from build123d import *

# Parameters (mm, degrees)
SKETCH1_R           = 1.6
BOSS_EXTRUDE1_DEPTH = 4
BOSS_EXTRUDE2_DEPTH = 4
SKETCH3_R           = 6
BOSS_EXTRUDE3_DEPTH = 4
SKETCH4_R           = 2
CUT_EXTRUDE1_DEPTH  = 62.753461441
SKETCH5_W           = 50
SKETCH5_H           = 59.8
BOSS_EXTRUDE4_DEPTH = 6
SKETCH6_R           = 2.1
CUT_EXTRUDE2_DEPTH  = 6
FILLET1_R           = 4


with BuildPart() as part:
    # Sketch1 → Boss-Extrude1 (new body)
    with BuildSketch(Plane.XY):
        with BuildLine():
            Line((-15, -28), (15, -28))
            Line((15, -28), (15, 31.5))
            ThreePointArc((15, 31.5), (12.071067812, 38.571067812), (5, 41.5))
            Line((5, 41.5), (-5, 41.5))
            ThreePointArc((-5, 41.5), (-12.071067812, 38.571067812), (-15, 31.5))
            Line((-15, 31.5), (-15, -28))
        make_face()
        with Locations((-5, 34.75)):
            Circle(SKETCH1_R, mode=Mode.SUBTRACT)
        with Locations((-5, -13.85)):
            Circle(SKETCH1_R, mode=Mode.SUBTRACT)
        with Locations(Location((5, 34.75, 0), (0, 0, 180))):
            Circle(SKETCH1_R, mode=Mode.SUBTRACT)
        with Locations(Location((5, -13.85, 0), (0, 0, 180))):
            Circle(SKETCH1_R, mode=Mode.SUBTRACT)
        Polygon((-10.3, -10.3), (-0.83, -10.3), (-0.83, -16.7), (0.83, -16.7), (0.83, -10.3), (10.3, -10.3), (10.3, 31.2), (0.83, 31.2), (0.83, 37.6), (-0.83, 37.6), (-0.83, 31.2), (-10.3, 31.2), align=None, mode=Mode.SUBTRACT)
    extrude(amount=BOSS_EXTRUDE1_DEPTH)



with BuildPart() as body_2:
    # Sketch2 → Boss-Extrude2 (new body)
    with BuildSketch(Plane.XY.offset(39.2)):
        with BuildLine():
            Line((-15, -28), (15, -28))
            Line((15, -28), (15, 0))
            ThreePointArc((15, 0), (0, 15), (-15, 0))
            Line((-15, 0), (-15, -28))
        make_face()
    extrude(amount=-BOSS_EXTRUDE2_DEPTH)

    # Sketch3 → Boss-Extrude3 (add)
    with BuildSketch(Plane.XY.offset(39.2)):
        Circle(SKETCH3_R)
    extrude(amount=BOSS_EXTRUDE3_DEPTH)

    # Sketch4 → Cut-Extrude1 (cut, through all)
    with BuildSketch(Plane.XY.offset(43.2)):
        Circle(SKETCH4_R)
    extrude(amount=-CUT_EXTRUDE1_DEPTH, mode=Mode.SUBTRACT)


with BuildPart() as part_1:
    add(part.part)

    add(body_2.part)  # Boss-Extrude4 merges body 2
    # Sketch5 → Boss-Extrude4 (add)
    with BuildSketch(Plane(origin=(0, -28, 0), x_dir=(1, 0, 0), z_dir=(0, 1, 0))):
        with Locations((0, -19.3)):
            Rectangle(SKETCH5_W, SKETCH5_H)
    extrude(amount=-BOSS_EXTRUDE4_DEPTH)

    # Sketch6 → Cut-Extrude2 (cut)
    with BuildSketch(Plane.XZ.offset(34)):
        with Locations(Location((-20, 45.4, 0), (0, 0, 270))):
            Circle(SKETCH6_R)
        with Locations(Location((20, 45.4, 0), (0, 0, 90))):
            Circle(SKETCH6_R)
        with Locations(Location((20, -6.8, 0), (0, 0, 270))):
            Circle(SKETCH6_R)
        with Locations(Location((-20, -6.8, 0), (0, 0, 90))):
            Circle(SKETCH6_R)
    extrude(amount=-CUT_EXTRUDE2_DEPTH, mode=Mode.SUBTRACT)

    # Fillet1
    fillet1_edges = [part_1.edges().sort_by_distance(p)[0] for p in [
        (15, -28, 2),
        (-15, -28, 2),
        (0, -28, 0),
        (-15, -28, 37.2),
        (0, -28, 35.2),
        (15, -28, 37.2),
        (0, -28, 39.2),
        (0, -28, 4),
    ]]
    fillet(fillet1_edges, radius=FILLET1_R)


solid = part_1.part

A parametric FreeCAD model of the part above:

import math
import FreeCAD as App
import Part
import Sketcher
from FreeCAD import Vector


def edges_at(feature, points):
    """Names of the edges that pass closest to the given points."""
    edges = feature.Shape.Edges
    near = lambda p: min(range(len(edges)), key=lambda i: edges[i].distToShape(Part.Vertex(*p))[0])
    return sorted({f"Edge{near(p) + 1}" for p in points})


def add_polygon(sketch, points):
    """Adds a closed chain of lines whose ends are joined by coincident constraints."""
    first, n = sketch.GeometryCount, len(points)
    for a, b in zip(points, points[1:] + points[:1]):
        sketch.addGeometry(Part.LineSegment(App.Vector(*a, 0), App.Vector(*b, 0)), False)
    for i in range(n):
        sketch.addConstraint(Sketcher.Constraint("Coincident", first + i, 2, first + (i + 1) % n, 1))

doc = App.newDocument("Part")
body = doc.addObject("PartDesign::Body", "Body")

# Sketch on XY plane
sketch1 = body.newObject("Sketcher::SketchObject", "Sketch")
sketch1.AttachmentSupport = (doc.getObject("XY_Plane"), [""])
sketch1.MapMode = "FlatFace"
sketch1.addGeometry(Part.LineSegment(Vector(-15, -28, 0), Vector(15, -28, 0)), False)  # 0
sketch1.addGeometry(Part.LineSegment(Vector(15, -28, 0), Vector(15, 31.5, 0)), False)  # 1
sketch1.addGeometry(Part.ArcOfCircle(Part.Circle(Vector(5, 31.5, 0), Vector(0, 0, 1), 10), math.radians(0), math.radians(90)), False)  # 2
sketch1.addGeometry(Part.LineSegment(Vector(5, 41.5, 0), Vector(-5, 41.5, 0)), False)  # 3
sketch1.addGeometry(Part.ArcOfCircle(Part.Circle(Vector(-5, 31.5, 0), Vector(0, 0, 1), 10), math.radians(90), math.radians(180)), False)  # 4
sketch1.addGeometry(Part.LineSegment(Vector(-15, 31.5, 0), Vector(-15, -28, 0)), False)  # 5
sketch1.addGeometry(Part.Circle(Vector(-5, -13.85, 0), Vector(0, 0, 1), 1.6), False)  # 6
sketch1.addGeometry(Part.Circle(Vector(5, -13.85, 0), Vector(0, 0, 1), 1.6), False)  # 7
sketch1.addGeometry(Part.Circle(Vector(-5, 34.75, 0), Vector(0, 0, 1), 1.6), False)  # 8
add_polygon(sketch1, [(-0.83, -10.3), (-10.3, -10.3), (-10.3, 31.2), (-0.83, 31.2), (-0.83, 37.6), (0.83, 37.6), (0.83, 31.2), (10.3, 31.2), (10.3, -10.3), (0.83, -10.3), (0.83, -16.7), (-0.83, -16.7)])  # lines 9-20
sketch1.addGeometry(Part.Circle(Vector(5, 34.75, 0), Vector(0, 0, 1), 1.6), False)  # 21
sketch1.addConstraint(Sketcher.Constraint("Coincident", 0, 2, 1, 1))
sketch1.addConstraint(Sketcher.Constraint("Tangent", 1, 2, 2, 1))
sketch1.addConstraint(Sketcher.Constraint("Tangent", 2, 2, 3, 1))
sketch1.addConstraint(Sketcher.Constraint("Tangent", 3, 2, 4, 1))
sketch1.addConstraint(Sketcher.Constraint("Tangent", 4, 2, 5, 1))
sketch1.addConstraint(Sketcher.Constraint("Coincident", 5, 2, 0, 1))
sketch1.addConstraint(Sketcher.Constraint("Horizontal", 0))
sketch1.addConstraint(Sketcher.Constraint("Vertical", 1))
sketch1.addConstraint(Sketcher.Constraint("Horizontal", 3))
sketch1.addConstraint(Sketcher.Constraint("Vertical", 5))
sketch1.addConstraint(Sketcher.Constraint("Horizontal", 9))
sketch1.addConstraint(Sketcher.Constraint("Vertical", 10))
sketch1.addConstraint(Sketcher.Constraint("Horizontal", 11))
sketch1.addConstraint(Sketcher.Constraint("Vertical", 12))
sketch1.addConstraint(Sketcher.Constraint("Horizontal", 13))
sketch1.addConstraint(Sketcher.Constraint("Vertical", 14))
sketch1.addConstraint(Sketcher.Constraint("Horizontal", 15))
sketch1.addConstraint(Sketcher.Constraint("Vertical", 16))
sketch1.addConstraint(Sketcher.Constraint("Horizontal", 17))
sketch1.addConstraint(Sketcher.Constraint("Vertical", 18))
sketch1.addConstraint(Sketcher.Constraint("Horizontal", 19))
sketch1.addConstraint(Sketcher.Constraint("Vertical", 20))
sketch1.addConstraint(Sketcher.Constraint("Equal", 2, 4))
sketch1.addConstraint(Sketcher.Constraint("Equal", 6, 7))
sketch1.addConstraint(Sketcher.Constraint("Equal", 7, 8))
sketch1.addConstraint(Sketcher.Constraint("Equal", 8, 21))
sketch1.addConstraint(Sketcher.Constraint("Symmetric", 6, 3, 7, 3, -2))
sketch1.addConstraint(Sketcher.Constraint("Symmetric", 8, 3, 21, 3, -2))
sketch1.addConstraint(Sketcher.Constraint("Symmetric", 11, 2, 14, 2, -2))
sketch1.addConstraint(Sketcher.Constraint("Symmetric", 9, 2, 16, 2, -2))
sketch1.addConstraint(Sketcher.Constraint("Vertical", 4, 3, 6, 3))
sketch1.addConstraint(Sketcher.Constraint("Vertical", 2, 3, 7, 3))
sketch1.addConstraint(Sketcher.Constraint("Vertical", 6, 3, 8, 3))
sketch1.addConstraint(Sketcher.Constraint("Vertical", 14, 2, 17, 2))
sketch1.addConstraint(Sketcher.Constraint("Vertical", 12, 2, 19, 2))
sketch1.addConstraint(Sketcher.Constraint("Equal", 14, 18))
sketch1.addConstraint(Sketcher.Constraint("Radius", 2, 10.0))
sketch1.addConstraint(Sketcher.Constraint("Diameter", 6, 3.2))
sketch1.addConstraint(Sketcher.Constraint("DistanceX", 0, 1, 0, 2, 30.0))
sketch1.addConstraint(Sketcher.Constraint("DistanceY", 1, 1, 1, 2, 59.5))
sketch1.addConstraint(Sketcher.Constraint("DistanceY", 10, 1, 10, 2, 41.5))
sketch1.addConstraint(Sketcher.Constraint("DistanceY", 12, 1, 12, 2, 6.4))
sketch1.addConstraint(Sketcher.Constraint("DistanceY", 0, 2, -1, 1, 28.0))
sketch1.addConstraint(Sketcher.Constraint("DistanceX", 9, 2, 9, 1, 9.47))
sketch1.addConstraint(Sketcher.Constraint("DistanceX", 13, 1, 13, 2, 1.66))
sketch1.addConstraint(Sketcher.Constraint("DistanceY", 9, 2, -1, 1, 10.3))
sketch1.addConstraint(Sketcher.Constraint("DistanceY", 6, 3, 8, 3, 48.6))
sketch1.addConstraint(Sketcher.Constraint("DistanceY", 6, 3, -1, 1, 13.85))
pad1 = body.newObject("PartDesign::Pad", "Pad")
pad1.Profile = sketch1
pad1.Length = 4
body2 = doc.addObject("PartDesign::Body", "Body001")

# Sketch on XY plane
sketch2 = body2.newObject("Sketcher::SketchObject", "Sketch001")
sketch2.AttachmentSupport = (doc.getObject("XY_Plane001"), [""])
sketch2.MapMode = "FlatFace"
sketch2.AttachmentOffset = App.Placement(Vector(0, 0, 39.2), App.Rotation())
sketch2.addGeometry(Part.LineSegment(Vector(-15, -28, 0), Vector(15, -28, 0)), False)
sketch2.addGeometry(Part.LineSegment(Vector(15, -28, 0), Vector(15, 0, 0)), False)
sketch2.addGeometry(Part.ArcOfCircle(Part.Circle(Vector(0, 0, 0), Vector(0, 0, 1), 15), math.radians(0), math.radians(180)), False)
sketch2.addGeometry(Part.LineSegment(Vector(-15, 0, 0), Vector(-15, -28, 0)), False)
sketch2.addConstraint(Sketcher.Constraint("Coincident", 0, 2, 1, 1))
sketch2.addConstraint(Sketcher.Constraint("Tangent", 1, 2, 2, 1))
sketch2.addConstraint(Sketcher.Constraint("Tangent", 2, 2, 3, 1))
sketch2.addConstraint(Sketcher.Constraint("Coincident", 3, 2, 0, 1))
sketch2.addConstraint(Sketcher.Constraint("Horizontal", 0))
sketch2.addConstraint(Sketcher.Constraint("Vertical", 1))
sketch2.addConstraint(Sketcher.Constraint("Vertical", 3))
sketch2.addConstraint(Sketcher.Constraint("Coincident", 2, 3, -1, 1))
sketch2.addConstraint(Sketcher.Constraint("Radius", 2, 15.0))
sketch2.addConstraint(Sketcher.Constraint("DistanceY", 1, 1, 1, 2, 28.0))
pad2 = body2.newObject("PartDesign::Pad", "Pad001")
pad2.Profile = sketch2
pad2.Length = 4
pad2.Reversed = True

# Sketch on XY plane
sketch3 = body2.newObject("Sketcher::SketchObject", "Sketch002")
sketch3.AttachmentSupport = (doc.getObject("XY_Plane001"), [""])
sketch3.MapMode = "FlatFace"
sketch3.AttachmentOffset = App.Placement(Vector(0, 0, 39.2), App.Rotation())
sketch3.addGeometry(Part.Circle(Vector(0, 0, 0), Vector(0, 0, 1), 6), False)
sketch3.addConstraint(Sketcher.Constraint("Coincident", 0, 3, -1, 1))
sketch3.addConstraint(Sketcher.Constraint("Diameter", 0, 12.0))
pad3 = body2.newObject("PartDesign::Pad", "Pad002")
pad3.Profile = sketch3
pad3.Length = 4

# Sketch on XY plane
sketch4 = body2.newObject("Sketcher::SketchObject", "Sketch003")
sketch4.AttachmentSupport = (doc.getObject("XY_Plane001"), [""])
sketch4.MapMode = "FlatFace"
sketch4.AttachmentOffset = App.Placement(Vector(0, 0, 43.2), App.Rotation())
sketch4.addGeometry(Part.Circle(Vector(0, 0, 0), Vector(0, 0, 1), 2), False)
sketch4.addConstraint(Sketcher.Constraint("Coincident", 0, 3, -1, 1))
sketch4.addConstraint(Sketcher.Constraint("Diameter", 0, 4.0))
pocket1 = body2.newObject("PartDesign::Pocket", "Pocket")
pocket1.Profile = sketch4
pocket1.Type = "ThroughAll"
body.AllowCompound = True
doc.recompute()

boolean = body.newObject("PartDesign::Boolean", "Boolean")
boolean.Type = "Fuse"
boolean.addObjects([body2])

# Sketch on XZ plane
sketch5 = body.newObject("Sketcher::SketchObject", "Sketch004")
sketch5.AttachmentSupport = (doc.getObject("XZ_Plane"), [""])
sketch5.MapMode = "FlatFace"
sketch5.AttachmentOffset = App.Placement(Vector(0, 0, 28), App.Rotation())
add_polygon(sketch5, [(-25, -10.6), (-25, 49.2), (25, 49.2), (25, -10.6)])  # lines 0-3
sketch5.addConstraint(Sketcher.Constraint("Vertical", 0))
sketch5.addConstraint(Sketcher.Constraint("Horizontal", 1))
sketch5.addConstraint(Sketcher.Constraint("Vertical", 2))
sketch5.addConstraint(Sketcher.Constraint("Horizontal", 3))
sketch5.addConstraint(Sketcher.Constraint("DistanceX", 1, 1, 1, 2, 50.0))
sketch5.addConstraint(Sketcher.Constraint("DistanceY", 0, 1, 0, 2, 59.8))
sketch5.addConstraint(Sketcher.Constraint("DistanceX", 0, 2, -1, 1, 25.0))
sketch5.addConstraint(Sketcher.Constraint("DistanceY", -1, 1, 0, 2, 49.2))
pad4 = body.newObject("PartDesign::Pad", "Pad003")
pad4.Profile = sketch5
pad4.Length = 6

# Sketch on XZ plane
sketch6 = body.newObject("Sketcher::SketchObject", "Sketch005")
sketch6.AttachmentSupport = (doc.getObject("XZ_Plane"), [""])
sketch6.MapMode = "FlatFace"
sketch6.AttachmentOffset = App.Placement(Vector(0, 0, 34), App.Rotation())
sketch6.addGeometry(Part.Circle(Vector(-20, 45.4, 0), Vector(0, 0, 1), 2.1), False)
sketch6.addGeometry(Part.Circle(Vector(20, 45.4, 0), Vector(0, 0, 1), 2.1), False)
sketch6.addGeometry(Part.Circle(Vector(20, -6.8, 0), Vector(0, 0, 1), 2.1), False)
sketch6.addGeometry(Part.Circle(Vector(-20, -6.8, 0), Vector(0, 0, 1), 2.1), False)
sketch6.addConstraint(Sketcher.Constraint("Equal", 0, 1))
sketch6.addConstraint(Sketcher.Constraint("Equal", 1, 2))
sketch6.addConstraint(Sketcher.Constraint("Equal", 2, 3))
sketch6.addConstraint(Sketcher.Constraint("Symmetric", 0, 3, 1, 3, -2))
sketch6.addConstraint(Sketcher.Constraint("Symmetric", 2, 3, 3, 3, -2))
sketch6.addConstraint(Sketcher.Constraint("Vertical", 1, 3, 2, 3))
sketch6.addConstraint(Sketcher.Constraint("Diameter", 0, 4.2))
sketch6.addConstraint(Sketcher.Constraint("DistanceX", 0, 3, -1, 1, 20.0))
sketch6.addConstraint(Sketcher.Constraint("DistanceY", -1, 1, 0, 3, 45.4))
sketch6.addConstraint(Sketcher.Constraint("DistanceY", 2, 3, -1, 1, 6.8))
pocket2 = body.newObject("PartDesign::Pocket", "Pocket001")
pocket2.Profile = sketch6
pocket2.Length = 6
doc.recompute()

fillet = body.newObject("PartDesign::Fillet", "Fillet")
fillet.Base = (pocket2, edges_at(pocket2, [
    (15, -28, 2),
    (-15, -28, 2),
    (0, -28, 0),
    (-15, -28, 37.2),
    (0, -28, 35.2),
    (15, -28, 37.2),
    (0, -28, 39.2),
    (0, -28, 4),
]))
fillet.Radius = 4

doc.recompute()
